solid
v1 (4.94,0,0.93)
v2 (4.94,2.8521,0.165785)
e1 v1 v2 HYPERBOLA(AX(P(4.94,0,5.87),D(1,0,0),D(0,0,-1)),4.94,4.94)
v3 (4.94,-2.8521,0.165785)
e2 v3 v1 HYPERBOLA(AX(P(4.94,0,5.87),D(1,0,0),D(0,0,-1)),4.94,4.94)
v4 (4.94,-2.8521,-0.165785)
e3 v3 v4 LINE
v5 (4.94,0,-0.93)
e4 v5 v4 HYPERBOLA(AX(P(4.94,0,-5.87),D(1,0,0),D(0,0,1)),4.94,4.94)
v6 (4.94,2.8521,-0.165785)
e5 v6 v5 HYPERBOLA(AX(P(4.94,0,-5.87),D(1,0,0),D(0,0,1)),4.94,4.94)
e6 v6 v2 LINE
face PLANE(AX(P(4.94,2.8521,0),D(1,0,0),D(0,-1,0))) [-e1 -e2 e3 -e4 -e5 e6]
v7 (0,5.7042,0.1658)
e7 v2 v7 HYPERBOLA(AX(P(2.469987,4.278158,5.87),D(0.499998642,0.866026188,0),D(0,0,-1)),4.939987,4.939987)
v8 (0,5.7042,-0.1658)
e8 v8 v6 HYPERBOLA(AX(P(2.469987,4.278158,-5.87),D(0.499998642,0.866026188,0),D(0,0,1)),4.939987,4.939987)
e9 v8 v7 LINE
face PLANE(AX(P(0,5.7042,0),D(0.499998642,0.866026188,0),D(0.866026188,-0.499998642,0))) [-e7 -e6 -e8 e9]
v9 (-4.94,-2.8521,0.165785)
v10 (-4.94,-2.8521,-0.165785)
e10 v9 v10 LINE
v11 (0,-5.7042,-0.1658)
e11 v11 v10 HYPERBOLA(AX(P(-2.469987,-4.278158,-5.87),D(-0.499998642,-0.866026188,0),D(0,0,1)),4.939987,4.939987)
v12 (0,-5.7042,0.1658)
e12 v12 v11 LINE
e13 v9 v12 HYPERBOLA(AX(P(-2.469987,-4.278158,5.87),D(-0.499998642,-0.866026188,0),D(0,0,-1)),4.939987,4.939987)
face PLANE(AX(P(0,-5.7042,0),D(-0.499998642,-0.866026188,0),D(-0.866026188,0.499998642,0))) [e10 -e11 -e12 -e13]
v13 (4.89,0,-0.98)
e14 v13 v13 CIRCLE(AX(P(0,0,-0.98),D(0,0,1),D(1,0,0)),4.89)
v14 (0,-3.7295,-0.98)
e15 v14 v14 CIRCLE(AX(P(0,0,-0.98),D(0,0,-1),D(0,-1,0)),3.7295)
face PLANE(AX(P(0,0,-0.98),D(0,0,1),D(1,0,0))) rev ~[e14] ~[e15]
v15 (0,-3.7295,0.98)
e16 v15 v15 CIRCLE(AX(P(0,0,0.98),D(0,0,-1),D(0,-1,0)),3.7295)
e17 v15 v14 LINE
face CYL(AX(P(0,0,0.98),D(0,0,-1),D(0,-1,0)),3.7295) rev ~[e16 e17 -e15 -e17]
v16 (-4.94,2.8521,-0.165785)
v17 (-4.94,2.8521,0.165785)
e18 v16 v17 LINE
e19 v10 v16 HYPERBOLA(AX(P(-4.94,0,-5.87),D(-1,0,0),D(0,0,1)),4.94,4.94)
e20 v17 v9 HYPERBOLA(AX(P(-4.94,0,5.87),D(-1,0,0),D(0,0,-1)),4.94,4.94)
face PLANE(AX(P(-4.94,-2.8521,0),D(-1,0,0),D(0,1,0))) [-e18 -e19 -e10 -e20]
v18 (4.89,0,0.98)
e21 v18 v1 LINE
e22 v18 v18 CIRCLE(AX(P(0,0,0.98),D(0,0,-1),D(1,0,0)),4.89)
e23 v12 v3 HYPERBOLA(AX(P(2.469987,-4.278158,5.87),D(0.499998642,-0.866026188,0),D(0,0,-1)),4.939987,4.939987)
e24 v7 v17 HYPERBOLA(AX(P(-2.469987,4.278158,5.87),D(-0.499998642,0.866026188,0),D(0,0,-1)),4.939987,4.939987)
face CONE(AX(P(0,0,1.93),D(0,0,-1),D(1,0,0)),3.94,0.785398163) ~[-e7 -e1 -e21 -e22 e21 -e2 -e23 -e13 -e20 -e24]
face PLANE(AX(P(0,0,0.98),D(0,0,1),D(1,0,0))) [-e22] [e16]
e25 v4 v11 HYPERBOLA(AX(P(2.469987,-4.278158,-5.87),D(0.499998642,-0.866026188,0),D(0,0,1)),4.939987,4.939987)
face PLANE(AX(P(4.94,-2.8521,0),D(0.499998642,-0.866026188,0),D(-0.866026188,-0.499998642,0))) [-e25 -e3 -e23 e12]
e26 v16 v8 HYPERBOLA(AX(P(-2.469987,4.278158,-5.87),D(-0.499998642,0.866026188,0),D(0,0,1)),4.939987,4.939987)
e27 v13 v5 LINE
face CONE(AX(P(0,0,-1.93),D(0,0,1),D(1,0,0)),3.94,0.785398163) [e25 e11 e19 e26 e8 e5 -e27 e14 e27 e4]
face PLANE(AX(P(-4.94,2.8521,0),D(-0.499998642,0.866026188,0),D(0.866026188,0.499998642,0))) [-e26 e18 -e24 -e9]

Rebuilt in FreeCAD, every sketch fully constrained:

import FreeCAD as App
import Part
import Sketcher
Q = App.Units.Quantity

doc = App.newDocument("Part")
body = doc.addObject("PartDesign::Body", "Body")

# Sketch on XY plane
sketch1 = body.newObject("Sketcher::SketchObject", "Sketch")
sketch1.AttachmentSupport = (doc.getObject("XY_Plane"), [""])
sketch1.MapMode = "FlatFace"
sketch1.addGeometry(Part.LineSegment(App.Vector(5, -3, 0), App.Vector(5, 3, 0)), False)
sketch1.addGeometry(Part.LineSegment(App.Vector(5, 3, 0), App.Vector(0, 6, 0)), False)
sketch1.addGeometry(Part.LineSegment(App.Vector(0, 6, 0), App.Vector(-5, 3, 0)), False)
sketch1.addGeometry(Part.LineSegment(App.Vector(-5, 3, 0), App.Vector(-5, -3, 0)), False)
sketch1.addGeometry(Part.LineSegment(App.Vector(-5, -3, 0), App.Vector(0, -6, 0)), False)
sketch1.addGeometry(Part.LineSegment(App.Vector(0, -6, 0), App.Vector(5, -3, 0)), False)
sketch1.addConstraint(Sketcher.Constraint("Coincident", 0, 2, 1, 1))
sketch1.addConstraint(Sketcher.Constraint("Coincident", 1, 2, 2, 1))
sketch1.addConstraint(Sketcher.Constraint("Coincident", 2, 2, 3, 1))
sketch1.addConstraint(Sketcher.Constraint("Coincident", 3, 2, 4, 1))
sketch1.addConstraint(Sketcher.Constraint("Coincident", 4, 2, 5, 1))
sketch1.addConstraint(Sketcher.Constraint("Coincident", 5, 2, 0, 1))
sketch1.addConstraint(Sketcher.Constraint("Vertical", 0))
sketch1.addConstraint(Sketcher.Constraint("Vertical", 3))
sketch1.addConstraint(Sketcher.Constraint("Symmetric", 0, 2, 3, 2, -1, 1))
sketch1.addConstraint(Sketcher.Constraint("Symmetric", 1, 2, 4, 2, -1, 1))
sketch1.addConstraint(Sketcher.Constraint("PointOnObject", 1, 2, -2))
sketch1.addConstraint(Sketcher.Constraint("Parallel", 2, 5))
sketch1.addConstraint(Sketcher.Constraint("Horizontal", 0, 2, 2, 2))
sketch1.addConstraint(Sketcher.Constraint("Angle", 1, Q("150 deg")))
sketch1.addConstraint(Sketcher.Constraint("DistanceX", 2, 2, 0, 2, 9.88))
sketch1.addConstraint(Sketcher.Constraint("DistanceY", 0, 1, 0, 2, 5.7042))
pad1 = body.newObject("PartDesign::Pad", "Pad")
pad1.Profile = sketch1
pad1.Length = 1.96
pad1.Midplane = True

# Sketch on XY plane
sketch2 = body.newObject("Sketcher::SketchObject", "Sketch001")
sketch2.AttachmentSupport = (doc.getObject("XY_Plane"), [""])
sketch2.MapMode = "FlatFace"
sketch2.AttachmentOffset = App.Placement(App.Vector(0, 0, 0.98), App.Rotation())
sketch2.addGeometry(Part.Circle(App.Vector(0, 0, 0), App.Vector(0, 0, 1), 3.7), False)
sketch2.addConstraint(Sketcher.Constraint("Coincident", 0, 3, -1, 1))
sketch2.addConstraint(Sketcher.Constraint("Diameter", 0, 7.459))
doc.recompute()
hole = body.newObject("PartDesign::Hole", "Hole")
hole.Profile = sketch2
hole.ThreadType = "None"
hole.Diameter = 7.459
hole.DepthType = "Dimension"
hole.Depth = 18.8
hole.DrillPoint = "Angled"
hole.DrillPointAngle = 118

# Sketch on XZ plane
sketch3 = body.newObject("Sketcher::SketchObject", "Sketch002")
sketch3.AttachmentSupport = (doc.getObject("XZ_Plane"), [""])
sketch3.MapMode = "FlatFace"
sketch3.addGeometry(Part.LineSegment(App.Vector(5.9, -0.1, 0), App.Vector(3.9, 1.9, 0)), False)
sketch3.addGeometry(Part.LineSegment(App.Vector(3.9, 1.9, 0), App.Vector(5.9, 1.9, 0)), False)
sketch3.addGeometry(Part.LineSegment(App.Vector(5.9, 1.9, 0), App.Vector(5.9, -0.1, 0)), False)
sketch3.addConstraint(Sketcher.Constraint("Coincident", 0, 2, 1, 1))
sketch3.addConstraint(Sketcher.Constraint("Coincident", 1, 2, 2, 1))
sketch3.addConstraint(Sketcher.Constraint("Coincident", 2, 2, 0, 1))
sketch3.addConstraint(Sketcher.Constraint("Horizontal", 1))
sketch3.addConstraint(Sketcher.Constraint("Vertical", 2))
sketch3.addConstraint(Sketcher.Constraint("Equal", 1, 2))
sketch3.addConstraint(Sketcher.Constraint("DistanceX", 1, 1, 1, 2, 2.0))
sketch3.addConstraint(Sketcher.Constraint("DistanceX", -1, 1, 0, 2, 3.94))
sketch3.addConstraint(Sketcher.Constraint("DistanceY", -1, 1, 0, 2, 1.93))
groove = body.newObject("PartDesign::Groove", "Groove")
groove.Profile = sketch3
groove.ReferenceAxis = (sketch3, ["V_Axis"])
groove.Angle = 360
doc.recompute()

mirrored = body.newObject("PartDesign::Mirrored", "Mirrored")
mirrored.Originals = [groove]
mirrored.MirrorPlane = (doc.getObject("XY_Plane"), [""])
body.Tip = mirrored

doc.recompute()
